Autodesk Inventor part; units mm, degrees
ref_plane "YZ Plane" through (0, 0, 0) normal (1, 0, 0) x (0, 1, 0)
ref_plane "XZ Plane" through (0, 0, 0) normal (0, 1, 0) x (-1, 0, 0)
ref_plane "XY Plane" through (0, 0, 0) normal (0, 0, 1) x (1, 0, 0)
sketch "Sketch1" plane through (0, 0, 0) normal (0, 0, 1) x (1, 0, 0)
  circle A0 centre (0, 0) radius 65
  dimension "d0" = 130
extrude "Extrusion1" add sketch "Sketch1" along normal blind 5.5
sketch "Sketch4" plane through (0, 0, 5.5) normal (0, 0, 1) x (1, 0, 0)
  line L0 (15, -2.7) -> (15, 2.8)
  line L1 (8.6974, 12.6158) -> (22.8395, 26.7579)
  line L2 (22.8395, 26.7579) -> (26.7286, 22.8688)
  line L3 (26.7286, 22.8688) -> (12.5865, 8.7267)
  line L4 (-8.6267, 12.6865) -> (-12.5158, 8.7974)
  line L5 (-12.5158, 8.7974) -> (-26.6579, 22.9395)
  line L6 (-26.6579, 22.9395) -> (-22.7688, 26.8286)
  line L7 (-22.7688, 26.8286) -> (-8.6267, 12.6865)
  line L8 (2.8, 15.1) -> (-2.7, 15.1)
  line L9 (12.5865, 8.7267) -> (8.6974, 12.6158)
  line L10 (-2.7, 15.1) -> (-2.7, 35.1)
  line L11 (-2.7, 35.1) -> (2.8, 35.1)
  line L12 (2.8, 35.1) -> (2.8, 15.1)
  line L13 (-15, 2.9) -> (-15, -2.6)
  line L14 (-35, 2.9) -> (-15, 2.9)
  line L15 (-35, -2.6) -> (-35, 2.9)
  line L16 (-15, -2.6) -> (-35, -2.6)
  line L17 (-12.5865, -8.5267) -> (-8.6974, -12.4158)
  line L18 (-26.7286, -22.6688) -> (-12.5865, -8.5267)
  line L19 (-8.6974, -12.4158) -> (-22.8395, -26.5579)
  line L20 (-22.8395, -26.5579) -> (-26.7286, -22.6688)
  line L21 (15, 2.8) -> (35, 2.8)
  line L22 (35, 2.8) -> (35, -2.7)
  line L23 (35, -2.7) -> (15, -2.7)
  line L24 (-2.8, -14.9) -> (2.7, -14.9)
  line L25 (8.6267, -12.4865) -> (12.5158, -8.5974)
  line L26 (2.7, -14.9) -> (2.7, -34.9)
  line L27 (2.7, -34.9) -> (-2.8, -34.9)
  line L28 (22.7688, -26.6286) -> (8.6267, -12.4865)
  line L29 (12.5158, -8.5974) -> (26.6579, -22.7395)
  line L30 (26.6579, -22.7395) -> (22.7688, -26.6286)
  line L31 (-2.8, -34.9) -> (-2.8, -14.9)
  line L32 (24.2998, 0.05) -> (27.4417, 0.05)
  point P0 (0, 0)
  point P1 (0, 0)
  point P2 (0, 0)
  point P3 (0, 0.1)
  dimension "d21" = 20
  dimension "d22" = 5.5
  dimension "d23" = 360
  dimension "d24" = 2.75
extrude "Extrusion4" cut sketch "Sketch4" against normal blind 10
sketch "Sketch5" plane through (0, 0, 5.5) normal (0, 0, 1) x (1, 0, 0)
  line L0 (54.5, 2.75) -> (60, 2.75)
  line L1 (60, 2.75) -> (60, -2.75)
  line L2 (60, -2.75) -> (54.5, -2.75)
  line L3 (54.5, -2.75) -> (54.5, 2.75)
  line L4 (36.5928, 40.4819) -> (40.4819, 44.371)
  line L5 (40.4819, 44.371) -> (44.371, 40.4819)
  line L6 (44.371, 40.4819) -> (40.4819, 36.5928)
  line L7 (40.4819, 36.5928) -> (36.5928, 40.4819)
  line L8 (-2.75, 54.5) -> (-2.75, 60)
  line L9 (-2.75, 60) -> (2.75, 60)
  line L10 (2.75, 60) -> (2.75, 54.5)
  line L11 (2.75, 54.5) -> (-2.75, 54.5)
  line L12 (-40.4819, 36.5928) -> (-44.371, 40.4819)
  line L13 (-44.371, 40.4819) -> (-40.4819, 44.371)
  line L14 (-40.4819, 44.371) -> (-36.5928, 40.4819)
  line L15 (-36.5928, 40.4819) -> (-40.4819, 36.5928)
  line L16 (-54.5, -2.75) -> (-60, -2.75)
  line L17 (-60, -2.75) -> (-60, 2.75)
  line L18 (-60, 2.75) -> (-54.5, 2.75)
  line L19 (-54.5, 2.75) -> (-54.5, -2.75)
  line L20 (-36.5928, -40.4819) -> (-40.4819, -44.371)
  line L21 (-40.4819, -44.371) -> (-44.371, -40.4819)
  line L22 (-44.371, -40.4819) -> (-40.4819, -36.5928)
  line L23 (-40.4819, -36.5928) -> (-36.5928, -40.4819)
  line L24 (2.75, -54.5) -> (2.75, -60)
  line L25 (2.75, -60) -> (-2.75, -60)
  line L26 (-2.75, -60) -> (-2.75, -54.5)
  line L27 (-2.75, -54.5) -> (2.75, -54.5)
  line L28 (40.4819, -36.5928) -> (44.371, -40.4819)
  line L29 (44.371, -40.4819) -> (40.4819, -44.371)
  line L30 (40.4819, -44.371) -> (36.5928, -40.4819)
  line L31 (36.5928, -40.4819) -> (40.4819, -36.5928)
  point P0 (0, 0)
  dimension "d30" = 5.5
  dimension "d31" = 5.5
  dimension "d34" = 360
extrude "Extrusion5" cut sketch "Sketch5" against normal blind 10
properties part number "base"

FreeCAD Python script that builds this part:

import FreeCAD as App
import Part
import Sketcher
Q = App.Units.Quantity


def add_polygon(sketch, points):
    """Adds a closed chain of lines whose ends are joined by coincident constraints."""
    first, n = sketch.GeometryCount, len(points)
    for a, b in zip(points, points[1:] + points[:1]):
        sketch.addGeometry(Part.LineSegment(App.Vector(*a, 0), App.Vector(*b, 0)), False)
    for i in range(n):
        sketch.addConstraint(Sketcher.Constraint("Coincident", first + i, 2, first + (i + 1) % n, 1))

doc = App.newDocument("Part")
params = doc.addObject("Spreadsheet::Sheet", "Params")
for row, (alias, value) in enumerate([
    ("sketch1_diameter", "130 mm"),
    ("pad1_length", "5.5 mm"),
    ("sketch2_width", "20 mm"),
    ("sketch2_length", "20 mm"),
    ("sketch2_width2", "5.5 mm"),
    ("sketch2_length2", "5.5 mm"),
    ("pocket1_length", "10 mm"),
    ("sketch3_width", "5.5 mm"),
    ("sketch3_length", "5.5 mm"),
    ("pocket2_length", "10 mm"),
], start=1):
    params.set(f"A{row}", alias)
    params.set(f"B{row}", "=" + value)
    params.setAlias(f"B{row}", alias)

body = doc.addObject("PartDesign::Body", "Body")

# Sketch on XY plane
sketch1 = body.newObject("Sketcher::SketchObject", "Sketch")
sketch1.AttachmentSupport = (doc.getObject("XY_Plane"), [""])
sketch1.MapMode = "FlatFace"
sketch1.addGeometry(Part.Circle(App.Vector(0, 0, 0), App.Vector(0, 0, 1), 65), False)
sketch1.addConstraint([
    Sketcher.Constraint("Coincident", 0, 3, -1, 1),
    Sketcher.Constraint("Diameter", 0, Q("130 mm")),
])
sketch1.setExpression("Constraints[1]", "Params.sketch1_diameter")
pad1 = body.newObject("PartDesign::Pad", "Pad")
pad1.Profile = sketch1
pad1.setExpression("Length", "Params.pad1_length")

# Sketch on XY plane
sketch2 = body.newObject("Sketcher::SketchObject", "Sketch001")
sketch2.AttachmentSupport = (doc.getObject("XY_Plane"), [""])
sketch2.MapMode = "FlatFace"
sketch2.AttachmentOffset = App.Placement(App.Vector(0, 0, 5.5), App.Rotation())
add_polygon(sketch2, [(15, 2.8), (15, -2.7), (35, -2.7), (35, 2.8)])  # lines 0-3
add_polygon(sketch2, [(22.8395, 26.7579), (8.6974, 12.6158), (12.5865, 8.7267), (26.7286, 22.8688)])  # lines 4-7
add_polygon(sketch2, [(-12.5158, 8.7974), (-8.6267, 12.6865), (-22.7688, 26.8286), (-26.6579, 22.9395)])  # lines 8-11
add_polygon(sketch2, [(-2.7, 15.1), (2.8, 15.1), (2.8, 35.1), (-2.7, 35.1)])  # lines 12-15
add_polygon(sketch2, [(-15, -2.6), (-15, 2.9), (-35, 2.9), (-35, -2.6)])  # lines 16-19
add_polygon(sketch2, [(-8.6974, -12.4158), (-12.5865, -8.5267), (-26.7286, -22.6688), (-22.8395, -26.5579)])  # lines 20-23
add_polygon(sketch2, [(2.7, -14.9), (-2.8, -14.9), (-2.8, -34.9), (2.7, -34.9)])  # lines 24-27
add_polygon(sketch2, [(12.5158, -8.5974), (8.6267, -12.4865), (22.7688, -26.6286), (26.6579, -22.7395)])  # lines 28-31
sketch2.addConstraint([
    Sketcher.Constraint("Vertical", 0),
    Sketcher.Constraint("Horizontal", 1),
    Sketcher.Constraint("Vertical", 2),
    Sketcher.Constraint("Horizontal", 3),
    Sketcher.Constraint("Horizontal", 12),
    Sketcher.Constraint("Vertical", 13),
    Sketcher.Constraint("Horizontal", 14),
    Sketcher.Constraint("Vertical", 15),
    Sketcher.Constraint("Vertical", 16),
    Sketcher.Constraint("Horizontal", 17),
    Sketcher.Constraint("Vertical", 18),
    Sketcher.Constraint("Horizontal", 19),
    Sketcher.Constraint("Horizontal", 24),
    Sketcher.Constraint("Vertical", 25),
    Sketcher.Constraint("Horizontal", 26),
    Sketcher.Constraint("Vertical", 27),
    Sketcher.Constraint("Perpendicular", 4, 5),
    Sketcher.Constraint("Perpendicular", 5, 6),
    Sketcher.Constraint("Perpendicular", 6, 7),
    Sketcher.Constraint("Perpendicular", 7, 8),
    Sketcher.Constraint("Perpendicular", 8, 9),
    Sketcher.Constraint("Perpendicular", 9, 10),
    Sketcher.Constraint("Perpendicular", 10, 11),
    Sketcher.Constraint("Parallel", 11, 20),
    Sketcher.Constraint("Perpendicular", 20, 21),
    Sketcher.Constraint("Perpendicular", 21, 22),
    Sketcher.Constraint("Perpendicular", 22, 23),
    Sketcher.Constraint("Parallel", 23, 28),
    Sketcher.Constraint("Perpendicular", 28, 29),
    Sketcher.Constraint("Perpendicular", 29, 30),
    Sketcher.Constraint("Perpendicular", 30, 31),
    Sketcher.Constraint("Equal", 3, 17),
    Sketcher.Constraint("Equal", 14, 24),
    Sketcher.Constraint("Equal", 26, 0),
    Sketcher.Constraint("Equal", 19, 13),
    Sketcher.Constraint("Equal", 2, 16),
    Sketcher.Constraint("Equal", 15, 25),
    Sketcher.Constraint("Equal", 7, 8),
    Sketcher.Constraint("Equal", 6, 9),
    Sketcher.Constraint("Equal", 10, 20),
    Sketcher.Constraint("Equal", 11, 21),
    Sketcher.Constraint("Equal", 22, 28),
    Sketcher.Constraint("Equal", 23, 29),
    Sketcher.Constraint("DistanceX", 1, 1, 1, 2, Q("20 mm")),
    Sketcher.Constraint("Distance", 4, Q("20 mm")),
    Sketcher.Constraint("DistanceX", 12, 1, 12, 2, Q("5.5 mm")),
    Sketcher.Constraint("Distance", 5, Q("5.5 mm")),
    Sketcher.Constraint("Angle", 4, Q("-135 deg")),
    Sketcher.Constraint("DistanceX", -1, 1, 0, 2, Q("15 mm")),
    Sketcher.Constraint("DistanceX", 16, 2, -1, 1, Q("15 mm")),
    Sketcher.Constraint("DistanceY", 0, 2, -1, 1, Q("2.7 mm")),
    Sketcher.Constraint("DistanceX", -1, 1, 12, 2, Q("2.8 mm")),
    Sketcher.Constraint("DistanceY", -1, 1, 12, 2, Q("15.1 mm")),
    Sketcher.Constraint("DistanceY", -1, 1, 16, 2, Q("2.9 mm")),
    Sketcher.Constraint("DistanceX", 24, 2, -1, 1, Q("2.8 mm")),
    Sketcher.Constraint("DistanceY", 24, 2, -1, 1, Q("14.9 mm")),
    Sketcher.Constraint("DistanceY", -1, 1, 7, 2, Q("26.758 mm")),
    Sketcher.Constraint("DistanceX", 10, 2, -1, 1, Q("26.658 mm")),
    Sketcher.Constraint("DistanceY", 22, 2, -1, 1, Q("26.558 mm")),
    Sketcher.Constraint("DistanceX", -1, 1, 30, 2, Q("26.658 mm")),
    Sketcher.Constraint("DistanceX", 8, 2, 4, 2, Q("17.324 mm")),
    Sketcher.Constraint("DistanceY", 5, 2, 9, 2, Q("18.102 mm")),
    Sketcher.Constraint("DistanceX", 23, 2, 28, 2, Q("17.324 mm")),
    Sketcher.Constraint("DistanceY", 28, 2, -1, 1, Q("12.4865 mm")),
])
sketch2.setExpression("Constraints[75]", "Params.sketch2_width")
sketch2.setExpression("Constraints[76]", "Params.sketch2_length")
sketch2.setExpression("Constraints[77]", "Params.sketch2_width2")
sketch2.setExpression("Constraints[78]", "Params.sketch2_length2")
pocket1 = body.newObject("PartDesign::Pocket", "Pocket")
pocket1.Profile = sketch2
pocket1.setExpression("Length", "Params.pocket1_length")

# Sketch on XY plane
sketch3 = body.newObject("Sketcher::SketchObject", "Sketch002")
sketch3.AttachmentSupport = (doc.getObject("XY_Plane"), [""])
sketch3.MapMode = "FlatFace"
sketch3.AttachmentOffset = App.Placement(App.Vector(0, 0, 5.5), App.Rotation())
add_polygon(sketch3, [(60, 2.75), (54.5, 2.75), (54.5, -2.75), (60, -2.75)])  # lines 0-3
add_polygon(sketch3, [(40.4819, 44.371), (36.5928, 40.4819), (40.4819, 36.5928), (44.371, 40.4819)])  # lines 4-7
add_polygon(sketch3, [(-2.75, 60), (-2.75, 54.5), (2.75, 54.5), (2.75, 60)])  # lines 8-11
add_polygon(sketch3, [(-44.371, 40.4819), (-40.4819, 36.5928), (-36.5928, 40.4819), (-40.4819, 44.371)])  # lines 12-15
add_polygon(sketch3, [(-60, -2.75), (-54.5, -2.75), (-54.5, 2.75), (-60, 2.75)])  # lines 16-19
add_polygon(sketch3, [(-40.4819, -44.371), (-36.5928, -40.4819), (-40.4819, -36.5928), (-44.371, -40.4819)])  # lines 20-23
add_polygon(sketch3, [(2.75, -60), (2.75, -54.5), (-2.75, -54.5), (-2.75, -60)])  # lines 24-27
add_polygon(sketch3, [(44.371, -40.4819), (40.4819, -36.5928), (36.5928, -40.4819), (40.4819, -44.371)])  # lines 28-31
sketch3.addConstraint([
    Sketcher.Constraint("Horizontal", 0),
    Sketcher.Constraint("Vertical", 1),
    Sketcher.Constraint("Horizontal", 2),
    Sketcher.Constraint("Vertical", 3),
    Sketcher.Constraint("Vertical", 8),
    Sketcher.Constraint("Horizontal", 9),
    Sketcher.Constraint("Vertical", 10),
    Sketcher.Constraint("Horizontal", 11),
    Sketcher.Constraint("Horizontal", 16),
    Sketcher.Constraint("Vertical", 17),
    Sketcher.Constraint("Horizontal", 18),
    Sketcher.Constraint("Vertical", 19),
    Sketcher.Constraint("Vertical", 24),
    Sketcher.Constraint("Horizontal", 25),
    Sketcher.Constraint("Vertical", 26),
    Sketcher.Constraint("Horizontal", 27),
    Sketcher.Constraint("Symmetric", 0, 2, 16, 2, -1, 1),
    Sketcher.Constraint("Symmetric", 2, 2, 18, 2, -1, 1),
    Sketcher.Constraint("Symmetric", 4, 2, 20, 2, -1, 1),
    Sketcher.Constraint("Symmetric", 5, 2, 21, 2, -1, 1),
    Sketcher.Constraint("Symmetric", 6, 2, 22, 2, -1, 1),
    Sketcher.Constraint("Symmetric", 7, 2, 23, 2, -1, 1),
    Sketcher.Constraint("Symmetric", 8, 2, 24, 2, -1, 1),
    Sketcher.Constraint("Symmetric", 10, 2, 26, 2, -1, 1),
    Sketcher.Constraint("Symmetric", 12, 2, 28, 2, -1, 1),
    Sketcher.Constraint("Symmetric", 13, 2, 29, 2, -1, 1),
    Sketcher.Constraint("Symmetric", 14, 2, 30, 2, -1, 1),
    Sketcher.Constraint("Symmetric", 15, 2, 31, 2, -1, 1),
    Sketcher.Constraint("Symmetric", 5, 2, 12, 2, -2),
    Sketcher.Constraint("Symmetric", 4, 2, 13, 2, -2),
    Sketcher.Constraint("Symmetric", 7, 2, 14, 2, -2),
    Sketcher.Constraint("Symmetric", 6, 2, 15, 2, -2),
    Sketcher.Constraint("Perpendicular", 4, 5),
    Sketcher.Constraint("Perpendicular", 5, 6),
    Sketcher.Constraint("Perpendicular", 6, 7),
    Sketcher.Constraint("Parallel", 7, 12),
    Sketcher.Constraint("Horizontal", 4, 2, 6, 2),
    Sketcher.Constraint("Horizontal", 2, 2, 16, 2),
    Sketcher.Constraint("Vertical", 10, 2, 24, 2),
    Sketcher.Constraint("Equal", 2, 9),
    Sketcher.Constraint("Equal", 27, 1),
    Sketcher.Constraint("Equal", 3, 8),
    Sketcher.Constraint("DistanceX", 0, 2, 0, 1, Q("5.5 mm")),
    Sketcher.Constraint("Distance", 4, Q("5.5 mm")),
    Sketcher.Constraint("DistanceX", -1, 1, 2, 2, Q("60 mm")),
    Sketcher.Constraint("DistanceY", -1, 1, 10, 2, Q("60 mm")),
    Sketcher.Constraint("DistanceY", -1, 1, 4, 2, Q("40.482 mm")),
    Sketcher.Constraint("DistanceX", -1, 1, 5, 2, Q("40.482 mm")),
])
sketch3.setExpression("Constraints[74]", "Params.sketch3_width")
sketch3.setExpression("Constraints[75]", "Params.sketch3_length")
pocket2 = body.newObject("PartDesign::Pocket", "Pocket001")
pocket2.Profile = sketch3
pocket2.setExpression("Length", "Params.pocket2_length")

doc.recompute()
